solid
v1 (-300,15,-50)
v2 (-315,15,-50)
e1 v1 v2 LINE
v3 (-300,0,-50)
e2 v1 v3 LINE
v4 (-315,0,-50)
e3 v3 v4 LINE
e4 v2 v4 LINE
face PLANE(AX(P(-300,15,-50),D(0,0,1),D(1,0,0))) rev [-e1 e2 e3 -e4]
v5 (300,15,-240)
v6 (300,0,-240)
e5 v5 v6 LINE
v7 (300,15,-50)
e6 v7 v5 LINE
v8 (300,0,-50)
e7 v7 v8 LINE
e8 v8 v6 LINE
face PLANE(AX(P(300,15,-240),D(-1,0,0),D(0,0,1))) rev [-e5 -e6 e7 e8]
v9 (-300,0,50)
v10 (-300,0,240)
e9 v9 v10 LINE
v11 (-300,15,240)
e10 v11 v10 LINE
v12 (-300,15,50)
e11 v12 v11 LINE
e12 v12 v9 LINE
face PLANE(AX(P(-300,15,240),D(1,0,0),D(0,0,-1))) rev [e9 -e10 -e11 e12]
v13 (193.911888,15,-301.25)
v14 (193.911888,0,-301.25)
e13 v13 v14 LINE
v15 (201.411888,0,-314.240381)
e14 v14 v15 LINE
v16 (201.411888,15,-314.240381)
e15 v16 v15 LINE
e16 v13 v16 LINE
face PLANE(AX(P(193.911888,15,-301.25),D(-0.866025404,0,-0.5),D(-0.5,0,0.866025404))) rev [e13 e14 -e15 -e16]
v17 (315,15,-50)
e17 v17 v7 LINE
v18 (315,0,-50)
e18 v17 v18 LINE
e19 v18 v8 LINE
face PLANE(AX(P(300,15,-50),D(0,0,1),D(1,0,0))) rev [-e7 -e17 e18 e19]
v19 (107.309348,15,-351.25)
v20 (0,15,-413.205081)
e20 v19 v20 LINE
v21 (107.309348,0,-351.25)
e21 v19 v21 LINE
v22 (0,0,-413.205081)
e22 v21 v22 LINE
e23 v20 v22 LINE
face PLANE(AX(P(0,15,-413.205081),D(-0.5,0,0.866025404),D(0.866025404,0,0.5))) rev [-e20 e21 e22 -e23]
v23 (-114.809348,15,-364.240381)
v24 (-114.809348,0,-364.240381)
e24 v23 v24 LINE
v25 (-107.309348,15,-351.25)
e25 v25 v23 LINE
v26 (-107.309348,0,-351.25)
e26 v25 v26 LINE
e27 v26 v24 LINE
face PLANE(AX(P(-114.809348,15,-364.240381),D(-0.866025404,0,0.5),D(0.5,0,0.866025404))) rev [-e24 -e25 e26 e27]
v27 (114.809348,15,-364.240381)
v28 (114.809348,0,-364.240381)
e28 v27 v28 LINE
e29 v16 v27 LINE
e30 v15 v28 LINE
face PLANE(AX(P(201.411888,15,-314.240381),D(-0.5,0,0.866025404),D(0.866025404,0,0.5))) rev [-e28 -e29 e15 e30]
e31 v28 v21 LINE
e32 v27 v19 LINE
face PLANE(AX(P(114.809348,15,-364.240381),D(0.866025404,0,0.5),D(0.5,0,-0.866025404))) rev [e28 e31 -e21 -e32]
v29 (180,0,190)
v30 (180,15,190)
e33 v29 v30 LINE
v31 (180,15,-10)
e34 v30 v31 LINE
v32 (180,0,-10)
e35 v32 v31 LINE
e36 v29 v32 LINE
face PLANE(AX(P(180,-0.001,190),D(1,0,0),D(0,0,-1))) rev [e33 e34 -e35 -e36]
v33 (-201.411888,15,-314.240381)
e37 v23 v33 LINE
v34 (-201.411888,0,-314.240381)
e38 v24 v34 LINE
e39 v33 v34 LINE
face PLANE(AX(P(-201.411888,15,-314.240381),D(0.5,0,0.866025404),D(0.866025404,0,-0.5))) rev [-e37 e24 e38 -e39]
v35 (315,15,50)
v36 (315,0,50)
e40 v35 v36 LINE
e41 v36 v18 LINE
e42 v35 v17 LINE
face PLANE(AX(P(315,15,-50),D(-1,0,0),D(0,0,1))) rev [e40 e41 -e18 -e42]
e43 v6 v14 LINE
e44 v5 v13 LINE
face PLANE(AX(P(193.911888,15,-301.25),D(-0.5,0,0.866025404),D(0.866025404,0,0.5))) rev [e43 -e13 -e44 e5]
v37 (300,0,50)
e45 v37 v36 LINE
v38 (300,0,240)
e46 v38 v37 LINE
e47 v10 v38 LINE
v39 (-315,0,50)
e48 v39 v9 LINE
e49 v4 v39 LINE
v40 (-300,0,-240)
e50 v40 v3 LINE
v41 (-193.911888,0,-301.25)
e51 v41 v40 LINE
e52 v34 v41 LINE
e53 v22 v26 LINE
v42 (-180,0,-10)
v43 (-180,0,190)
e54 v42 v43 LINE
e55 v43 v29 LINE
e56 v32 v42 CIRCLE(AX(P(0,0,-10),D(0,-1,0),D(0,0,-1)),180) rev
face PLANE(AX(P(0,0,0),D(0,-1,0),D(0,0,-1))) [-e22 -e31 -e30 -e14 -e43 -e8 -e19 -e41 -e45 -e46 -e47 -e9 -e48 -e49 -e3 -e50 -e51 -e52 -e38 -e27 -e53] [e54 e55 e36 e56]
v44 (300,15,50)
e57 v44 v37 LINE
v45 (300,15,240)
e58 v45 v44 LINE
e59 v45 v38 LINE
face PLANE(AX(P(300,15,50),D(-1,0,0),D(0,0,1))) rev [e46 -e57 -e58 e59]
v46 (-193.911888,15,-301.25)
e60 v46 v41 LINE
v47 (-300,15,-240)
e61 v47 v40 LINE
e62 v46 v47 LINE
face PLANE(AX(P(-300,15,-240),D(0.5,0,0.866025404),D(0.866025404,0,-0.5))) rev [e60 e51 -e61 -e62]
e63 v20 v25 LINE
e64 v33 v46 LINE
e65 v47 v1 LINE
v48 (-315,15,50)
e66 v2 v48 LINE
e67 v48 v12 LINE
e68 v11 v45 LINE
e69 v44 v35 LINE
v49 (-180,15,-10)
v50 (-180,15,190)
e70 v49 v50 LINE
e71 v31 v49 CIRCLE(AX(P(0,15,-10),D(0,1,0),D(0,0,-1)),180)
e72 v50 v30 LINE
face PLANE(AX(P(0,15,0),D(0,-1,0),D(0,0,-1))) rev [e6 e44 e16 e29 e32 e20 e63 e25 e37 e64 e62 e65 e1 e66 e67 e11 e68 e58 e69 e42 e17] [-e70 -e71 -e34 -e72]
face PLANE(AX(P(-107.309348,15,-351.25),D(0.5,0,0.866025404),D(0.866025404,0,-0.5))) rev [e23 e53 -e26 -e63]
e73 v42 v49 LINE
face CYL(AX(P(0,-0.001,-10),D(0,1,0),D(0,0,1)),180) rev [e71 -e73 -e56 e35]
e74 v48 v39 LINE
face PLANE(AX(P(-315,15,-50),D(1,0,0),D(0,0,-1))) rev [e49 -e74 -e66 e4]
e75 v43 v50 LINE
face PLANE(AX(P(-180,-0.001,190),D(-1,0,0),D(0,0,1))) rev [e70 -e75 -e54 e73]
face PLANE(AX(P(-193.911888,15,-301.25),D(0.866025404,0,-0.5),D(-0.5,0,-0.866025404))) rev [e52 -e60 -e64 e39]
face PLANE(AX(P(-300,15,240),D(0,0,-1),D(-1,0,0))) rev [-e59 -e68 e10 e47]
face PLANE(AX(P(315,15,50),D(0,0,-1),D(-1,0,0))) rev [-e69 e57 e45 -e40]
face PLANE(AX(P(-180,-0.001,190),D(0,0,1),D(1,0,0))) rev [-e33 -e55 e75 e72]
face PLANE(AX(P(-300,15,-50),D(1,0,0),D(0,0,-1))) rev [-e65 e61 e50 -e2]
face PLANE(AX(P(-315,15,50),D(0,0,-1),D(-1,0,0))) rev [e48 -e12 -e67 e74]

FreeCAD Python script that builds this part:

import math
import FreeCAD as App
import Part
import Sketcher

V = App.Vector
Q = App.Units.Quantity

doc = App.newDocument("Part")
params = doc.addObject("Spreadsheet::Sheet", "Params")
for row, (alias, value) in enumerate([
    ("sketch1_width", "600 mm"),
    ("sketch1_width2", "15 mm"),
    ("sketch1_height", "190 mm"),
    ("sketch1_height2", "100 mm"),
    ("sketch1_length", "15 mm"),
    ("pad1_length", "15 mm"),
    ("sketch2_radius", "180 mm"),
    ("sketch2_height", "200 mm"),
], start=1):
    params.set(f"A{row}", alias)
    params.set(f"B{row}", "=" + value)
    params.setAlias(f"B{row}", alias)

body = doc.addObject("PartDesign::Body", "Body")

# Sketch on XZ plane
sketch1 = doc.addObject("Sketcher::SketchObject", "Sketch")
body.addObject(sketch1)
sketch1.AttachmentSupport = (doc.XZ_Plane, [""])
sketch1.MapMode = "FlatFace"
sketch1.addGeometry(Part.LineSegment(V(-300, 240, 0), V(300, 240, 0)), False)
sketch1.addGeometry(Part.LineSegment(V(300, 240, 0), V(300, 50, 0)), False)
sketch1.addGeometry(Part.LineSegment(V(300, 50, 0), V(315, 50, 0)), False)
sketch1.addGeometry(Part.LineSegment(V(315, 50, 0), V(315, -50, 0)), False)
sketch1.addGeometry(Part.LineSegment(V(315, -50, 0), V(300, -50, 0)), False)
sketch1.addGeometry(Part.LineSegment(V(300, -50, 0), V(300, -240, 0)), False)
sketch1.addGeometry(Part.LineSegment(V(300, -240, 0), V(194, -301, 0)), False)
sketch1.addGeometry(Part.LineSegment(V(194, -301, 0), V(201, -314, 0)), False)
sketch1.addGeometry(Part.LineSegment(V(201, -314, 0), V(115, -364, 0)), False)
sketch1.addGeometry(Part.LineSegment(V(115, -364, 0), V(107, -351, 0)), False)
sketch1.addGeometry(Part.LineSegment(V(107, -351, 0), V(0, -413, 0)), False)
sketch1.addGeometry(Part.LineSegment(V(0, -413, 0), V(-107, -351, 0)), False)
sketch1.addGeometry(Part.LineSegment(V(-107, -351, 0), V(-115, -364, 0)), False)
sketch1.addGeometry(Part.LineSegment(V(-115, -364, 0), V(-201, -314, 0)), False)
sketch1.addGeometry(Part.LineSegment(V(-201, -314, 0), V(-194, -301, 0)), False)
sketch1.addGeometry(Part.LineSegment(V(-194, -301, 0), V(-300, -240, 0)), False)
sketch1.addGeometry(Part.LineSegment(V(-300, -240, 0), V(-300, -50, 0)), False)
sketch1.addGeometry(Part.LineSegment(V(-300, -50, 0), V(-315, -50, 0)), False)
sketch1.addGeometry(Part.LineSegment(V(-315, -50, 0), V(-315, 50, 0)), False)
sketch1.addGeometry(Part.LineSegment(V(-315, 50, 0), V(-300, 50, 0)), False)
sketch1.addGeometry(Part.LineSegment(V(-300, 50, 0), V(-300, 240, 0)), False)
sketch1.addConstraint(Sketcher.Constraint("Coincident", 0, 2, 1, 1))
sketch1.addConstraint(Sketcher.Constraint("Coincident", 1, 2, 2, 1))
sketch1.addConstraint(Sketcher.Constraint("Coincident", 2, 2, 3, 1))
sketch1.addConstraint(Sketcher.Constraint("Coincident", 3, 2, 4, 1))
sketch1.addConstraint(Sketcher.Constraint("Coincident", 4, 2, 5, 1))
sketch1.addConstraint(Sketcher.Constraint("Coincident", 5, 2, 6, 1))
sketch1.addConstraint(Sketcher.Constraint("Coincident", 6, 2, 7, 1))
sketch1.addConstraint(Sketcher.Constraint("Coincident", 7, 2, 8, 1))
sketch1.addConstraint(Sketcher.Constraint("Coincident", 8, 2, 9, 1))
sketch1.addConstraint(Sketcher.Constraint("Coincident", 9, 2, 10, 1))
sketch1.addConstraint(Sketcher.Constraint("Coincident", 10, 2, 11, 1))
sketch1.addConstraint(Sketcher.Constraint("Coincident", 11, 2, 12, 1))
sketch1.addConstraint(Sketcher.Constraint("Coincident", 12, 2, 13, 1))
sketch1.addConstraint(Sketcher.Constraint("Coincident", 13, 2, 14, 1))
sketch1.addConstraint(Sketcher.Constraint("Coincident", 14, 2, 15, 1))
sketch1.addConstraint(Sketcher.Constraint("Coincident", 15, 2, 16, 1))
sketch1.addConstraint(Sketcher.Constraint("Coincident", 16, 2, 17, 1))
sketch1.addConstraint(Sketcher.Constraint("Coincident", 17, 2, 18, 1))
sketch1.addConstraint(Sketcher.Constraint("Coincident", 18, 2, 19, 1))
sketch1.addConstraint(Sketcher.Constraint("Coincident", 19, 2, 20, 1))
sketch1.addConstraint(Sketcher.Constraint("Coincident", 20, 2, 0, 1))
sketch1.addConstraint(Sketcher.Constraint("Horizontal", 0))
sketch1.addConstraint(Sketcher.Constraint("Vertical", 1))
sketch1.addConstraint(Sketcher.Constraint("Horizontal", 2))
sketch1.addConstraint(Sketcher.Constraint("Vertical", 3))
sketch1.addConstraint(Sketcher.Constraint("Horizontal", 4))
sketch1.addConstraint(Sketcher.Constraint("Vertical", 5))
sketch1.addConstraint(Sketcher.Constraint("Vertical", 16))
sketch1.addConstraint(Sketcher.Constraint("Horizontal", 17))
sketch1.addConstraint(Sketcher.Constraint("Vertical", 18))
sketch1.addConstraint(Sketcher.Constraint("Horizontal", 19))
sketch1.addConstraint(Sketcher.Constraint("Vertical", 20))
sketch1.addConstraint(Sketcher.Constraint("Symmetric", 0, 2, 15, 2, -1, 1))
sketch1.addConstraint(Sketcher.Constraint("Symmetric", 2, 2, 17, 2, -1, 1))
sketch1.addConstraint(Sketcher.Constraint("Symmetric", 4, 2, 19, 2, -1, 1))
sketch1.addConstraint(Sketcher.Constraint("Symmetric", 9, 2, 11, 2, -2))
sketch1.addConstraint(Sketcher.Constraint("Symmetric", 8, 2, 12, 2, -2))
sketch1.addConstraint(Sketcher.Constraint("Symmetric", 7, 2, 13, 2, -2))
sketch1.addConstraint(Sketcher.Constraint("Symmetric", 6, 2, 14, 2, -2))
sketch1.addConstraint(Sketcher.Constraint("Symmetric", 5, 2, 15, 2, -2))
sketch1.addConstraint(Sketcher.Constraint("PointOnObject", 10, 2, -2))
sketch1.addConstraint(Sketcher.Constraint("Perpendicular", 6, 7))
sketch1.addConstraint(Sketcher.Constraint("Perpendicular", 7, 8))
sketch1.addConstraint(Sketcher.Constraint("Perpendicular", 8, 9))
sketch1.addConstraint(Sketcher.Constraint("Perpendicular", 9, 10))
sketch1.addConstraint(Sketcher.Constraint("Horizontal", 4, 2, 16, 2))
sketch1.addConstraint(Sketcher.Constraint("Equal", 7, 9))
sketch1.addConstraint(Sketcher.Constraint("DistanceX", 0, 1, 0, 2, 600.0))
sketch1.addConstraint(Sketcher.Constraint("DistanceX", 2, 1, 2, 2, 15.0))
sketch1.addConstraint(Sketcher.Constraint("DistanceY", 1, 2, 1, 1, 190.0))
sketch1.addConstraint(Sketcher.Constraint("DistanceY", 3, 2, 3, 1, 100.0))
sketch1.addConstraint(Sketcher.Constraint("Angle", 6, Q("-150 deg")))
sketch1.addConstraint(Sketcher.Constraint("Distance", 7, 15.0))
sketch1.addConstraint(Sketcher.Constraint("Distance", 8, 100.0))
sketch1.addConstraint(Sketcher.Constraint("Distance", 6, 122.5))
sketch1.setExpression("Constraints[47]", "Params.sketch1_width")
sketch1.setExpression("Constraints[48]", "Params.sketch1_width2")
sketch1.setExpression("Constraints[49]", "Params.sketch1_height")
sketch1.setExpression("Constraints[50]", "Params.sketch1_height2")
sketch1.setExpression("Constraints[52]", "Params.sketch1_length")
pad1 = doc.addObject("PartDesign::Pad", "Pad")
body.addObject(pad1)
pad1.Profile = sketch1
pad1.setExpression("Length", "Params.pad1_length")
pad1.Reversed = True

# Sketch on XZ plane
sketch2 = doc.addObject("Sketcher::SketchObject", "Sketch001")
body.addObject(sketch2)
sketch2.AttachmentSupport = (doc.XZ_Plane, [""])
sketch2.MapMode = "FlatFace"
sketch2.AttachmentOffset = App.Placement(V(0, 0, -15), App.Rotation())
sketch2.addGeometry(Part.LineSegment(V(-180, 190, 0), V(180, 190, 0)), False)
sketch2.addGeometry(Part.LineSegment(V(180, 190, 0), V(180, -10, 0)), False)
sketch2.addGeometry(Part.ArcOfCircle(Part.Circle(V(0, -10, 0), V(0, 0, 1), 180), math.radians(180), math.radians(360)), False)
sketch2.addGeometry(Part.LineSegment(V(-180, -10, 0), V(-180, 190, 0)), False)
sketch2.addConstraint(Sketcher.Constraint("Coincident", 0, 2, 1, 1))
sketch2.addConstraint(Sketcher.Constraint("Tangent", 1, 2, 2, 2))
sketch2.addConstraint(Sketcher.Constraint("Tangent", 2, 1, 3, 1))
sketch2.addConstraint(Sketcher.Constraint("Coincident", 3, 2, 0, 1))
sketch2.addConstraint(Sketcher.Constraint("Horizontal", 0))
sketch2.addConstraint(Sketcher.Constraint("Vertical", 1))
sketch2.addConstraint(Sketcher.Constraint("Vertical", 3))
sketch2.addConstraint(Sketcher.Constraint("PointOnObject", 2, 3, -2))
sketch2.addConstraint(Sketcher.Constraint("Radius", 2, 180.0))
sketch2.addConstraint(Sketcher.Constraint("DistanceY", 1, 2, 1, 1, 200.0))
sketch2.addConstraint(Sketcher.Constraint("DistanceY", 2, 3, -1, 1, 10.0))
sketch2.setExpression("Constraints[8]", "Params.sketch2_radius")
sketch2.setExpression("Constraints[9]", "Params.sketch2_height")
pocket1 = doc.addObject("PartDesign::Pocket", "Pocket")
body.addObject(pocket1)
pocket1.Profile = sketch2
pocket1.Type = "UpToFirst"
pocket1.Reversed = True

doc.recompute()
